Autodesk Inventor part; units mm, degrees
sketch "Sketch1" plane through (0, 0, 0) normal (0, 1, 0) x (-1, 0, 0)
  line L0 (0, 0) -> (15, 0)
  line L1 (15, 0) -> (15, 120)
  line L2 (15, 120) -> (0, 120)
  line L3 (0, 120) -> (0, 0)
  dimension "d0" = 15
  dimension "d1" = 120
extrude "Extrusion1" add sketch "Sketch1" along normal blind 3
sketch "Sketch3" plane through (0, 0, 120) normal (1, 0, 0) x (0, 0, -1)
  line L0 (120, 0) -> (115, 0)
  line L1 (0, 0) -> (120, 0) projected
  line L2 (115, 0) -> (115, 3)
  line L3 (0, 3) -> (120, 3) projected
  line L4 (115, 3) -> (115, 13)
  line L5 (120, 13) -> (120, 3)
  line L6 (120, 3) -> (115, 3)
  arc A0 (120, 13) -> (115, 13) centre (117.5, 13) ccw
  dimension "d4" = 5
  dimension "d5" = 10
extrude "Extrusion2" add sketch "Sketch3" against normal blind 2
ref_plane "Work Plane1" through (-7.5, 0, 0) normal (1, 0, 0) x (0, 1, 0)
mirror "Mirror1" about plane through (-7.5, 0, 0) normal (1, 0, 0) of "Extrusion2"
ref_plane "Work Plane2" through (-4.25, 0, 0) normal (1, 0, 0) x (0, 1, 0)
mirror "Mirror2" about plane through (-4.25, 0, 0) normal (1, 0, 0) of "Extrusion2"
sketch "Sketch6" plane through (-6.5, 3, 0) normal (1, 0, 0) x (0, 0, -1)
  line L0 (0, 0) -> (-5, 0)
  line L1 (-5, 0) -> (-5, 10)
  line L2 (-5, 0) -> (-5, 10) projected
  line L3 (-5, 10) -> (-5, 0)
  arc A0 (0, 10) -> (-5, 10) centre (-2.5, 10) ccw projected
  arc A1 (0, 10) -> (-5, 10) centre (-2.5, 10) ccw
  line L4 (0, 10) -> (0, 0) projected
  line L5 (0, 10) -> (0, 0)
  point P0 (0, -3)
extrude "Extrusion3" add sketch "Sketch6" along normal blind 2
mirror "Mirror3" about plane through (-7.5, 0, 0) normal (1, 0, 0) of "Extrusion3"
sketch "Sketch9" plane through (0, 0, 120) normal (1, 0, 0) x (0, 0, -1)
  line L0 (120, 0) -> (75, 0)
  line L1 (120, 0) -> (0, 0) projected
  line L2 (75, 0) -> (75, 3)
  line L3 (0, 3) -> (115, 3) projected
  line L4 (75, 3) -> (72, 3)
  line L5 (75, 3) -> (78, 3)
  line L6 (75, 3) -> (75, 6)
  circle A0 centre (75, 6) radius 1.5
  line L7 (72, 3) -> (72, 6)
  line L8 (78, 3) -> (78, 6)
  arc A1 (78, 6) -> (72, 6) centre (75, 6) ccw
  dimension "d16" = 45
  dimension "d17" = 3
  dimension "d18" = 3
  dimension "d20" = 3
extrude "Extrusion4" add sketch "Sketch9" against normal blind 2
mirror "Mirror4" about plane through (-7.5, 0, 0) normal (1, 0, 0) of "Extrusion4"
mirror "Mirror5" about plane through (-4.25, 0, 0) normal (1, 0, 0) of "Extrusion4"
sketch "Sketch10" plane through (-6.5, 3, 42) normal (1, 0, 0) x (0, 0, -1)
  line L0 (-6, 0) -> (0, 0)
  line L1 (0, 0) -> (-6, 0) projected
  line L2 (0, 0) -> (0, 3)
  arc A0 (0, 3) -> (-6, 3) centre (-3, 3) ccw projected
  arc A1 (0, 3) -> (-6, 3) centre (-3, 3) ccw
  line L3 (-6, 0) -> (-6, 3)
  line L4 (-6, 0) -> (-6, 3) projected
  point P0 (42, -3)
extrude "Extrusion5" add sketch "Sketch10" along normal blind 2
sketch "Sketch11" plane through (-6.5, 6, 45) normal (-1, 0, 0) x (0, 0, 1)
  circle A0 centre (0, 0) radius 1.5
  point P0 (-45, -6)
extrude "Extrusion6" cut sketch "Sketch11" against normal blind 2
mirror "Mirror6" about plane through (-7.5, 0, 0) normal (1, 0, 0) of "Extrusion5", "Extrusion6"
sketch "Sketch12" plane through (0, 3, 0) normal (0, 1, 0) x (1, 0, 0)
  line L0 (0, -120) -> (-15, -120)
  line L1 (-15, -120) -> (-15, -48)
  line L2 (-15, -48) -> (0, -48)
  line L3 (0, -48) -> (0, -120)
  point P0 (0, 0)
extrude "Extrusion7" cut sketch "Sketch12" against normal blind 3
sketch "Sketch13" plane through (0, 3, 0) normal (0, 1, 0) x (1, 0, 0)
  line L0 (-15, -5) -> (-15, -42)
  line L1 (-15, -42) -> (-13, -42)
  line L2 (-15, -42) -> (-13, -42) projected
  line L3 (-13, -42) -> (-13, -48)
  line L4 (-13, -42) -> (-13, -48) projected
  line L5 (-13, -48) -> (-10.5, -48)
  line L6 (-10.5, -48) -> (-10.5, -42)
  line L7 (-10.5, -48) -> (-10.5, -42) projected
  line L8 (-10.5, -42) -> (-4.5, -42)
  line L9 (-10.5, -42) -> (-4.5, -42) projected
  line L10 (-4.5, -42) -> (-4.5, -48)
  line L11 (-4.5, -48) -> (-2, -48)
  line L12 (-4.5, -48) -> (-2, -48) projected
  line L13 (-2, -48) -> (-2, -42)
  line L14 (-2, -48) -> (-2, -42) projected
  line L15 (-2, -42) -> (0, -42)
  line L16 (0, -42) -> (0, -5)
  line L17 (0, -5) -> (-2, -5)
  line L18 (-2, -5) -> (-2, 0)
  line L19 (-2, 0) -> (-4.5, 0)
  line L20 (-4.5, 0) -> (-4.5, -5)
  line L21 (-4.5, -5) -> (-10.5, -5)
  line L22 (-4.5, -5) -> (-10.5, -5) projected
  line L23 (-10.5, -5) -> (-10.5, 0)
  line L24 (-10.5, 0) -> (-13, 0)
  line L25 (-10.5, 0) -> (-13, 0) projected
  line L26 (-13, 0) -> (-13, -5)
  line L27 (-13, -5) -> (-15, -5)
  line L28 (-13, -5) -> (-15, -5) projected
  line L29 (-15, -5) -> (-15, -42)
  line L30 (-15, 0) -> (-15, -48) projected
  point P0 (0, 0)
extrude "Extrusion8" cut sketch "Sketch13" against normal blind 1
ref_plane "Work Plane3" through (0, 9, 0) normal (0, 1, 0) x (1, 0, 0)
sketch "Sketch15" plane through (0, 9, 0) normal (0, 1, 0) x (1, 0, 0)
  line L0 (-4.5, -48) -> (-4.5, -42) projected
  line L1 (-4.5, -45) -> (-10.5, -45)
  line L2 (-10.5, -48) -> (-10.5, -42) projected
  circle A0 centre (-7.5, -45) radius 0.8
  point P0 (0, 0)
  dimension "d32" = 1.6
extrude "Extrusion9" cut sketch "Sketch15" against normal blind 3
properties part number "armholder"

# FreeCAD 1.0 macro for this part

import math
import FreeCAD as App
import Part
import Sketcher
Q = App.Units.Quantity


def add_polygon(sketch, points):
    """Adds a closed chain of lines whose ends are joined by coincident constraints."""
    first, n = sketch.GeometryCount, len(points)
    for a, b in zip(points, points[1:] + points[:1]):
        sketch.addGeometry(Part.LineSegment(App.Vector(*a, 0), App.Vector(*b, 0)), False)
    for i in range(n):
        sketch.addConstraint(Sketcher.Constraint("Coincident", first + i, 2, first + (i + 1) % n, 1))

doc = App.newDocument("Part")
params = doc.addObject("Spreadsheet::Sheet", "Params")
for row, (alias, value) in enumerate([
    ("sketch1_width", "15 mm"),
    ("sketch1_height", "120 mm"),
    ("pad1_length", "3 mm"),
    ("sketch2_radius", "2.5 mm"),
    ("sketch2_width", "10 mm"),
    ("pad2_length", "2 mm"),
    ("sketch3_radius", "2.5 mm"),
    ("sketch3_width", "10 mm"),
    ("pad3_length", "2 mm"),
    ("sketch4_diameter", "3 mm"),
    ("sketch4_radius", "3 mm"),
    ("pad4_length", "2 mm"),
    ("sketch5_radius", "3 mm"),
    ("sketch5_width", "3 mm"),
    ("pad5_length", "2 mm"),
    ("sketch6_diameter", "3 mm"),
    ("pocket1_length", "2 mm"),
    ("sketch7_width", "15 mm"),
    ("sketch7_height", "72 mm"),
    ("pocket2_length", "3 mm"),
    ("sketch8_width", "2 mm"),
    ("sketch8_width2", "6 mm"),
    ("sketch8_height", "37 mm"),
    ("sketch8_height2", "5 mm"),
    ("sketch8_width3", "2.5 mm"),
    ("pocket3_length", "1 mm"),
    ("sketch9_diameter", "1.6 mm"),
    ("pocket4_length", "3 mm"),
], start=1):
    params.set(f"A{row}", alias)
    params.set(f"B{row}", "=" + value)
    params.setAlias(f"B{row}", alias)

body = doc.addObject("PartDesign::Body", "Body")

sketch1 = doc.addObject("Sketcher::SketchObject", "Sketch")
body.addObject(sketch1)
sketch1.AttachmentSupport = (doc.XZ_Plane, [""])
sketch1.MapMode = "FlatFace"
add_polygon(sketch1, [(0, 120), (0, 0), (-15, 0), (-15, 120)])
sketch1.addConstraint([
    Sketcher.Constraint("Vertical", 0),
    Sketcher.Constraint("Horizontal", 1),
    Sketcher.Constraint("Vertical", 2),
    Sketcher.Constraint("Horizontal", 3),
    Sketcher.Constraint("Coincident", 0, 2, -1, 1),
    Sketcher.Constraint("DistanceX", 1, 2, 1, 1, Q("15 mm")),
    Sketcher.Constraint("DistanceY", 0, 2, 0, 1, Q("120 mm")),
])
sketch1.setExpression("Constraints[9]", "Params.sketch1_width")
sketch1.setExpression("Constraints[10]", "Params.sketch1_height")
pad1 = doc.addObject("PartDesign::Pad", "Pad")
body.addObject(pad1)
pad1.Profile = sketch1
pad1.setExpression("Length", "Params.pad1_length")
pad1.Reversed = True

sketch2 = doc.addObject("Sketcher::SketchObject", "Sketch001")
body.addObject(sketch2)
sketch2.AttachmentSupport = (doc.YZ_Plane, [""])
sketch2.MapMode = "FlatFace"
sketch2.addGeometry([
    Part.LineSegment(App.Vector(13, 5, 0), App.Vector(3, 5, 0)),
    Part.LineSegment(App.Vector(3, 5, 0), App.Vector(3, 0, 0)),
    Part.LineSegment(App.Vector(3, 0, 0), App.Vector(13, 0, 0)),
    Part.ArcOfCircle(Part.Circle(App.Vector(13, 2.5, 0), App.Vector(0, 0, 1), 2.5), math.radians(-90), math.radians(90)),
], False)
sketch2.addConstraint([
    Sketcher.Constraint("Coincident", 0, 2, 1, 1),
    Sketcher.Constraint("Coincident", 1, 2, 2, 1),
    Sketcher.Constraint("Tangent", 2, 2, 3, 1),
    Sketcher.Constraint("Tangent", 3, 2, 0, 1),
    Sketcher.Constraint("Horizontal", 0),
    Sketcher.Constraint("Vertical", 1),
    Sketcher.Constraint("Horizontal", 2),
    Sketcher.Constraint("PointOnObject", 1, 2, -1),
    Sketcher.Constraint("Radius", 3, Q("2.5 mm")),
    Sketcher.Constraint("DistanceX", 0, 2, 0, 1, Q("10 mm")),
    Sketcher.Constraint("DistanceX", -1, 1, 3, 3, Q("13 mm")),
])
sketch2.setExpression("Constraints[8]", "Params.sketch2_radius")
sketch2.setExpression("Constraints[9]", "Params.sketch2_width")
pad2 = doc.addObject("PartDesign::Pad", "Pad001")
body.addObject(pad2)
pad2.Profile = sketch2
pad2.setExpression("Length", "Params.pad2_length")
pad2.Reversed = True
doc.recompute()

datumplane = doc.addObject("PartDesign::Plane", "DatumPlane")
body.addObject(datumplane)
datumplane.AttachmentSupport = (doc.YZ_Plane, [""])
datumplane.MapMode = "FlatFace"
datumplane.AttachmentOffset = App.Placement(App.Vector(0, 0, -7.5), App.Rotation())
mirrored = doc.addObject("PartDesign::Mirrored", "Mirrored")
body.addObject(mirrored)
mirrored.Originals = [pad2]
mirrored.MirrorPlane = (datumplane, [""])
body.Tip = mirrored
doc.recompute()

datumplane2 = doc.addObject("PartDesign::Plane", "DatumPlane001")
body.addObject(datumplane2)
datumplane2.AttachmentSupport = (doc.YZ_Plane, [""])
datumplane2.MapMode = "FlatFace"
datumplane2.AttachmentOffset = App.Placement(App.Vector(0, 0, -4.25), App.Rotation())
mirrored2 = doc.addObject("PartDesign::Mirrored", "Mirrored001")
body.addObject(mirrored2)
mirrored2.Originals = [pad2]
mirrored2.MirrorPlane = (datumplane2, [""])
body.Tip = mirrored2

sketch3 = doc.addObject("Sketcher::SketchObject", "Sketch002")
body.addObject(sketch3)
sketch3.AttachmentSupport = (doc.YZ_Plane, [""])
sketch3.MapMode = "FlatFace"
sketch3.AttachmentOffset = App.Placement(App.Vector(0, 0, -6.5), App.Rotation())
sketch3.addGeometry([
    Part.LineSegment(App.Vector(3, 5, 0), App.Vector(3, 0, 0)),
    Part.LineSegment(App.Vector(3, 0, 0), App.Vector(13, 0, 0)),
    Part.ArcOfCircle(Part.Circle(App.Vector(13, 2.5, 0), App.Vector(0, 0, 1), 2.5), math.radians(-90), math.radians(90)),
    Part.LineSegment(App.Vector(13, 5, 0), App.Vector(3, 5, 0)),
], False)
sketch3.addConstraint([
    Sketcher.Constraint("Coincident", 0, 2, 1, 1),
    Sketcher.Constraint("Tangent", 1, 2, 2, 1),
    Sketcher.Constraint("Tangent", 2, 2, 3, 1),
    Sketcher.Constraint("Coincident", 3, 2, 0, 1),
    Sketcher.Constraint("Vertical", 0),
    Sketcher.Constraint("Horizontal", 1),
    Sketcher.Constraint("Horizontal", 3),
    Sketcher.Constraint("PointOnObject", 0, 2, -1),
    Sketcher.Constraint("Radius", 2, Q("2.5 mm")),
    Sketcher.Constraint("DistanceX", 1, 1, 1, 2, Q("10 mm")),
    Sketcher.Constraint("DistanceX", -1, 1, 2, 3, Q("13 mm")),
])
sketch3.setExpression("Constraints[8]", "Params.sketch3_radius")
sketch3.setExpression("Constraints[9]", "Params.sketch3_width")
pad3 = doc.addObject("PartDesign::Pad", "Pad002")
body.addObject(pad3)
pad3.Profile = sketch3
pad3.setExpression("Length", "Params.pad3_length")
doc.recompute()

datumplane3 = doc.addObject("PartDesign::Plane", "DatumPlane002")
body.addObject(datumplane3)
datumplane3.AttachmentSupport = (doc.YZ_Plane, [""])
datumplane3.MapMode = "FlatFace"
datumplane3.AttachmentOffset = App.Placement(App.Vector(0, 0, -7.5), App.Rotation())
mirrored3 = doc.addObject("PartDesign::Mirrored", "Mirrored002")
body.addObject(mirrored3)
mirrored3.Originals = [pad3]
mirrored3.MirrorPlane = (datumplane3, [""])
body.Tip = mirrored3

sketch4 = doc.addObject("Sketcher::SketchObject", "Sketch003")
body.addObject(sketch4)
sketch4.AttachmentSupport = (doc.YZ_Plane, [""])
sketch4.MapMode = "FlatFace"
sketch4.addGeometry([
    Part.LineSegment(App.Vector(6, 48, 0), App.Vector(3, 48, 0)),
    Part.LineSegment(App.Vector(3, 48, 0), App.Vector(3, 45, 0)),
    Part.LineSegment(App.Vector(3, 45, 0), App.Vector(3, 42, 0)),
    Part.LineSegment(App.Vector(3, 42, 0), App.Vector(6, 42, 0)),
    Part.ArcOfCircle(Part.Circle(App.Vector(6, 45, 0), App.Vector(0, 0, 1), 3), math.radians(-90), math.radians(90)),
    Part.Circle(App.Vector(6, 45, 0), App.Vector(0, 0, 1), 1.5),
], False)
sketch4.addConstraint([
    Sketcher.Constraint("Coincident", 0, 2, 1, 1),
    Sketcher.Constraint("Coincident", 1, 2, 2, 1),
    Sketcher.Constraint("Coincident", 2, 2, 3, 1),
    Sketcher.Constraint("Tangent", 3, 2, 4, 1),
    Sketcher.Constraint("Tangent", 4, 2, 0, 1),
    Sketcher.Constraint("Horizontal", 0),
    Sketcher.Constraint("Vertical", 1),
    Sketcher.Constraint("Vertical", 2),
    Sketcher.Constraint("Horizontal", 3),
    Sketcher.Constraint("Coincident", 5, 3, 4, 3),
    Sketcher.Constraint("Horizontal", 5, 3, 1, 2),
    Sketcher.Constraint("Equal", 3, 1),
    Sketcher.Constraint("Diameter", 5, Q("3 mm")),
    Sketcher.Constraint("Radius", 4, Q("3 mm")),
    Sketcher.Constraint("DistanceY", -1, 1, 4, 3, Q("45 mm")),
    Sketcher.Constraint("DistanceX", -1, 1, 0, 2, Q("3 mm")),
])
sketch4.setExpression("Constraints[12]", "Params.sketch4_diameter")
sketch4.setExpression("Constraints[13]", "Params.sketch4_radius")
pad4 = doc.addObject("PartDesign::Pad", "Pad003")
body.addObject(pad4)
pad4.Profile = sketch4
pad4.setExpression("Length", "Params.pad4_length")
pad4.Reversed = True
doc.recompute()

datumplane4 = doc.addObject("PartDesign::Plane", "DatumPlane003")
body.addObject(datumplane4)
datumplane4.AttachmentSupport = (doc.YZ_Plane, [""])
datumplane4.MapMode = "FlatFace"
datumplane4.AttachmentOffset = App.Placement(App.Vector(0, 0, -7.5), App.Rotation())
mirrored4 = doc.addObject("PartDesign::Mirrored", "Mirrored003")
body.addObject(mirrored4)
mirrored4.Originals = [pad4]
mirrored4.MirrorPlane = (datumplane4, [""])
body.Tip = mirrored4
doc.recompute()

datumplane5 = doc.addObject("PartDesign::Plane", "DatumPlane004")
body.addObject(datumplane5)
datumplane5.AttachmentSupport = (doc.YZ_Plane, [""])
datumplane5.MapMode = "FlatFace"
datumplane5.AttachmentOffset = App.Placement(App.Vector(0, 0, -4.25), App.Rotation())
mirrored5 = doc.addObject("PartDesign::Mirrored", "Mirrored004")
body.addObject(mirrored5)
mirrored5.Originals = [pad4]
mirrored5.MirrorPlane = (datumplane5, [""])
body.Tip = mirrored5

sketch5 = doc.addObject("Sketcher::SketchObject", "Sketch004")
body.addObject(sketch5)
sketch5.AttachmentSupport = (doc.YZ_Plane, [""])
sketch5.MapMode = "FlatFace"
sketch5.AttachmentOffset = App.Placement(App.Vector(0, 0, -6.5), App.Rotation())
sketch5.addGeometry([
    Part.LineSegment(App.Vector(6, 48, 0), App.Vector(3, 48, 0)),
    Part.LineSegment(App.Vector(3, 48, 0), App.Vector(3, 42, 0)),
    Part.LineSegment(App.Vector(3, 42, 0), App.Vector(6, 42, 0)),
    Part.ArcOfCircle(Part.Circle(App.Vector(6, 45, 0), App.Vector(0, 0, 1), 3), math.radians(-90), math.radians(90)),
], False)
sketch5.addConstraint([
    Sketcher.Constraint("Coincident", 0, 2, 1, 1),
    Sketcher.Constraint("Coincident", 1, 2, 2, 1),
    Sketcher.Constraint("Tangent", 2, 2, 3, 1),
    Sketcher.Constraint("Tangent", 3, 2, 0, 1),
    Sketcher.Constraint("Horizontal", 0),
    Sketcher.Constraint("Vertical", 1),
    Sketcher.Constraint("Horizontal", 2),
    Sketcher.Constraint("Radius", 3, Q("3 mm")),
    Sketcher.Constraint("DistanceX", 0, 2, 0, 1, Q("3 mm")),
    Sketcher.Constraint("DistanceX", -1, 1, 3, 3, Q("6 mm")),
    Sketcher.Constraint("DistanceY", -1, 1, 3, 3, Q("45 mm")),
])
sketch5.setExpression("Constraints[7]", "Params.sketch5_radius")
sketch5.setExpression("Constraints[8]", "Params.sketch5_width")
pad5 = doc.addObject("PartDesign::Pad", "Pad004")
body.addObject(pad5)
pad5.Profile = sketch5
pad5.setExpression("Length", "Params.pad5_length")

sketch6 = doc.addObject("Sketcher::SketchObject", "Sketch005")
body.addObject(sketch6)
sketch6.AttachmentSupport = (doc.YZ_Plane, [""])
sketch6.MapMode = "FlatFace"
sketch6.AttachmentOffset = App.Placement(App.Vector(0, 0, -6.5), App.Rotation())
sketch6.addGeometry(Part.Circle(App.Vector(6, 45, 0), App.Vector(0, 0, 1), 1.5), False)
sketch6.addConstraint([
    Sketcher.Constraint("Diameter", 0, Q("3 mm")),
    Sketcher.Constraint("DistanceX", -1, 1, 0, 3, Q("6 mm")),
    Sketcher.Constraint("DistanceY", -1, 1, 0, 3, Q("45 mm")),
])
sketch6.setExpression("Constraints[0]", "Params.sketch6_diameter")
pocket1 = doc.addObject("PartDesign::Pocket", "Pocket")
body.addObject(pocket1)
pocket1.Profile = sketch6
pocket1.setExpression("Length", "Params.pocket1_length")
pocket1.Reversed = True
doc.recompute()

datumplane6 = doc.addObject("PartDesign::Plane", "DatumPlane005")
body.addObject(datumplane6)
datumplane6.AttachmentSupport = (doc.YZ_Plane, [""])
datumplane6.MapMode = "FlatFace"
datumplane6.AttachmentOffset = App.Placement(App.Vector(0, 0, -7.5), App.Rotation())
mirrored6 = doc.addObject("PartDesign::Mirrored", "Mirrored005")
body.addObject(mirrored6)
mirrored6.Originals = [pad5, pocket1]
mirrored6.MirrorPlane = (datumplane6, [""])
body.Tip = mirrored6

sketch7 = doc.addObject("Sketcher::SketchObject", "Sketch006")
body.addObject(sketch7)
sketch7.AttachmentSupport = (doc.XZ_Plane, [""])
sketch7.MapMode = "FlatFace"
sketch7.AttachmentOffset = App.Placement(App.Vector(0, 0, -3), App.Rotation())
add_polygon(sketch7, [(-15, 120), (0, 120), (0, 48), (-15, 48)])
sketch7.addConstraint([
    Sketcher.Constraint("Horizontal", 0),
    Sketcher.Constraint("Vertical", 1),
    Sketcher.Constraint("Horizontal", 2),
    Sketcher.Constraint("Vertical", 3),
    Sketcher.Constraint("PointOnObject", 0, 2, -2),
    Sketcher.Constraint("DistanceX", 0, 1, 0, 2, Q("15 mm")),
    Sketcher.Constraint("DistanceY", 1, 2, 1, 1, Q("72 mm")),
    Sketcher.Constraint("DistanceY", -1, 1, 0, 2, Q("120 mm")),
])
sketch7.setExpression("Constraints[9]", "Params.sketch7_width")
sketch7.setExpression("Constraints[10]", "Params.sketch7_height")
pocket2 = doc.addObject("PartDesign::Pocket", "Pocket001")
body.addObject(pocket2)
pocket2.Profile = sketch7
pocket2.setExpression("Length", "Params.pocket2_length")
pocket2.Reversed = True

sketch8 = doc.addObject("Sketcher::SketchObject", "Sketch007")
body.addObject(sketch8)
sketch8.AttachmentSupport = (doc.XZ_Plane, [""])
sketch8.MapMode = "FlatFace"
sketch8.AttachmentOffset = App.Placement(App.Vector(0, 0, -3), App.Rotation())
add_polygon(sketch8, [(-13, 5), (-15, 5), (-15, 42), (-13, 42), (-13, 48), (-10.5, 48), (-10.5, 42), (-4.5, 42), (-4.5, 48), (-2, 48), (-2, 42), (0, 42), (0, 5), (-2, 5), (-2, 0), (-4.5, 0), (-4.5, 5), (-10.5, 5), (-10.5, 0), (-13, 0)])
sketch8.addConstraint([
    Sketcher.Constraint("Horizontal", 0),
    Sketcher.Constraint("Vertical", 1),
    Sketcher.Constraint("Horizontal", 2),
    Sketcher.Constraint("Vertical", 3),
    Sketcher.Constraint("Horizontal", 4),
    Sketcher.Constraint("Vertical", 5),
    Sketcher.Constraint("Horizontal", 6),
    Sketcher.Constraint("Vertical", 7),
    Sketcher.Constraint("Horizontal", 8),
    Sketcher.Constraint("Vertical", 9),
    Sketcher.Constraint("Horizontal", 10),
    Sketcher.Constraint("Vertical", 11),
    Sketcher.Constraint("Horizontal", 12),
    Sketcher.Constraint("Vertical", 13),
    Sketcher.Constraint("Horizontal", 14),
    Sketcher.Constraint("Vertical", 15),
    Sketcher.Constraint("Horizontal", 16),
    Sketcher.Constraint("Vertical", 17),
    Sketcher.Constraint("Horizontal", 18),
    Sketcher.Constraint("Vertical", 19),
    Sketcher.Constraint("PointOnObject", 10, 2, -2),
    Sketcher.Constraint("PointOnObject", 13, 2, -1),
    Sketcher.Constraint("PointOnObject", 17, 2, -1),
    Sketcher.Constraint("Horizontal", 2, 2, 5, 2),
    Sketcher.Constraint("Horizontal", 4, 2, 7, 2),
    Sketcher.Constraint("Horizontal", 6, 2, 9, 2),
    Sketcher.Constraint("Horizontal", 0, 2, 11, 2),
    Sketcher.Constraint("Horizontal", 12, 2, 15, 2),
    Sketcher.Constraint("Vertical", 9, 2, 12, 2),
    Sketcher.Constraint("Vertical", 7, 2, 14, 2),
    Sketcher.Constraint("Vertical", 5, 2, 16, 2),
    Sketcher.Constraint("Vertical", 3, 2, 18, 2),
    Sketcher.Constraint("Equal", 4, 8),
    Sketcher.Constraint("Equal", 2, 10),
    Sketcher.Constraint("Equal", 16, 3),
    Sketcher.Constraint("DistanceX", 0, 2, 0, 1, Q("2 mm")),
    Sketcher.Constraint("DistanceX", 6, 1, 6, 2, Q("6 mm")),
    Sketcher.Constraint("DistanceY", 1, 1, 1, 2, Q("37 mm")),
    Sketcher.Constraint("DistanceY", 13, 2, 13, 1, Q("5 mm")),
    Sketcher.Constraint("DistanceX", 4, 1, 4, 2, Q("2.5 mm")),
])
sketch8.setExpression("Constraints[55]", "Params.sketch8_width")
sketch8.setExpression("Constraints[56]", "Params.sketch8_width2")
sketch8.setExpression("Constraints[57]", "Params.sketch8_height")
sketch8.setExpression("Constraints[58]", "Params.sketch8_height2")
sketch8.setExpression("Constraints[59]", "Params.sketch8_width3")
pocket3 = doc.addObject("PartDesign::Pocket", "Pocket002")
body.addObject(pocket3)
pocket3.Profile = sketch8
pocket3.setExpression("Length", "Params.pocket3_length")
pocket3.Reversed = True

sketch9 = doc.addObject("Sketcher::SketchObject", "Sketch008")
body.addObject(sketch9)
sketch9.AttachmentSupport = (doc.XZ_Plane, [""])
sketch9.MapMode = "FlatFace"
sketch9.AttachmentOffset = App.Placement(App.Vector(0, 0, -9), App.Rotation())
sketch9.addGeometry(Part.Circle(App.Vector(-7.5, 45, 0), App.Vector(0, 0, 1), 0.8), False)
sketch9.addConstraint([
    Sketcher.Constraint("Diameter", 0, Q("1.6 mm")),
    Sketcher.Constraint("DistanceY", -1, 1, 0, 3, Q("45 mm")),
    Sketcher.Constraint("DistanceX", 0, 3, -1, 1, Q("7.5 mm")),
])
sketch9.setExpression("Constraints[0]", "Params.sketch9_diameter")
pocket4 = doc.addObject("PartDesign::Pocket", "Pocket003")
body.addObject(pocket4)
pocket4.Profile = sketch9
pocket4.setExpression("Length", "Params.pocket4_length")
pocket4.Reversed = True

doc.recompute()
